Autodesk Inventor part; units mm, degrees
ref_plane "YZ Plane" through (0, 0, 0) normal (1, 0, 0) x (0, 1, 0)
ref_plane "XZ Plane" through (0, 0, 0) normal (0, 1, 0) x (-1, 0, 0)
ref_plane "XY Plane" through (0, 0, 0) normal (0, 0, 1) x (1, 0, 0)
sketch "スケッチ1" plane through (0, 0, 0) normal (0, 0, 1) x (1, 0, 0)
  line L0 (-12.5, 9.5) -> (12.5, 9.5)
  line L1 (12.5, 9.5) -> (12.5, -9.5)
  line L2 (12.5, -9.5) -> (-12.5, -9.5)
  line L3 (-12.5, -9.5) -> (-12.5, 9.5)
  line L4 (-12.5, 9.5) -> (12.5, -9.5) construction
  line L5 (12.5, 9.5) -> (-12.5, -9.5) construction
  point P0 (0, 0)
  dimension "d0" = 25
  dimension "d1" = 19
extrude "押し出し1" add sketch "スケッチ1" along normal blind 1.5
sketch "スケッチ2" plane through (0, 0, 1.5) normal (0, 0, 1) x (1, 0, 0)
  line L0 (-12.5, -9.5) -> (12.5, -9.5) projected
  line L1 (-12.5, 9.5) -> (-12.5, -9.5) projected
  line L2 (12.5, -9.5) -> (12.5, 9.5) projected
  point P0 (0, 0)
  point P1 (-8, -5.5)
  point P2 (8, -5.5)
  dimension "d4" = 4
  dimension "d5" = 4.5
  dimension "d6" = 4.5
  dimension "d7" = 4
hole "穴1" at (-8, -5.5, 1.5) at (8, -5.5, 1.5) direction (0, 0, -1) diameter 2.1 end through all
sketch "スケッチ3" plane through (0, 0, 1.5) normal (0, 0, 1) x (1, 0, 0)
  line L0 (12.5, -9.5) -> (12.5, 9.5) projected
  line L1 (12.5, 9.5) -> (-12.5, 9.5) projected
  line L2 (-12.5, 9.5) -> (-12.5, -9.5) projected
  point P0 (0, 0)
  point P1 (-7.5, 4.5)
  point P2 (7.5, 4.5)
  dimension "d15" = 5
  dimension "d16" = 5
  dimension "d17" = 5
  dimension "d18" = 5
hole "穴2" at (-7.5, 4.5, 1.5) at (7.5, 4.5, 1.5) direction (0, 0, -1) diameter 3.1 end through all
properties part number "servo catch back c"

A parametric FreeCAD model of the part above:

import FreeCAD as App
import Part
import Sketcher
Q = App.Units.Quantity


def add_polygon(sketch, points):
    """Adds a closed chain of lines whose ends are joined by coincident constraints."""
    first, n = sketch.GeometryCount, len(points)
    for a, b in zip(points, points[1:] + points[:1]):
        sketch.addGeometry(Part.LineSegment(App.Vector(*a, 0), App.Vector(*b, 0)), False)
    for i in range(n):
        sketch.addConstraint(Sketcher.Constraint("Coincident", first + i, 2, first + (i + 1) % n, 1))

doc = App.newDocument("Part")
body = doc.addObject("PartDesign::Body", "Body")

# Sketch on XY plane
sketch1 = body.newObject("Sketcher::SketchObject", "Sketch")
sketch1.AttachmentSupport = (doc.getObject("XY_Plane"), [""])
sketch1.MapMode = "FlatFace"
add_polygon(sketch1, [(12, 10), (-12, 10), (-12, -10), (12, -10)])  # lines 0-3
sketch1.addConstraint(Sketcher.Constraint("Horizontal", 0))
sketch1.addConstraint(Sketcher.Constraint("Vertical", 1))
sketch1.addConstraint(Sketcher.Constraint("Horizontal", 2))
sketch1.addConstraint(Sketcher.Constraint("Vertical", 3))
sketch1.addConstraint(Sketcher.Constraint("Symmetric", 0, 2, 2, 2, -1, 1))
sketch1.addConstraint(Sketcher.Constraint("DistanceX", 0, 2, 0, 1, Q("25 mm")))
sketch1.addConstraint(Sketcher.Constraint("DistanceY", 1, 2, 1, 1, Q("19 mm")))
pad1 = body.newObject("PartDesign::Pad", "Pad")
pad1.Profile = sketch1
pad1.Length = 1.5

# Sketch on XY plane
sketch2 = body.newObject("Sketcher::SketchObject", "Sketch001")
sketch2.AttachmentSupport = (doc.getObject("XY_Plane"), [""])
sketch2.MapMode = "FlatFace"
sketch2.AttachmentOffset = App.Placement(App.Vector(0, 0, 1.5), App.Rotation())
sketch2.addGeometry(Part.Circle(App.Vector(-8, -5.5, 0), App.Vector(0, 0, 1), 1.1), False)
sketch2.addGeometry(Part.Circle(App.Vector(8, -5.5, 0), App.Vector(0, 0, 1), 1.1), False)
sketch2.addConstraint(Sketcher.Constraint("Equal", 0, 1))
sketch2.addConstraint(Sketcher.Constraint("Symmetric", 0, 3, 1, 3, -2))
sketch2.addConstraint(Sketcher.Constraint("Diameter", 0, Q("2.1 mm")))
sketch2.addConstraint(Sketcher.Constraint("DistanceX", 0, 3, -1, 1, Q("8 mm")))
sketch2.addConstraint(Sketcher.Constraint("DistanceY", 0, 3, -1, 1, Q("5.5 mm")))
doc.recompute()
hole = body.newObject("PartDesign::Hole", "Hole")
hole.Profile = sketch2
hole.ThreadType = "None"
hole.Diameter = 2.1
hole.DepthType = "ThroughAll"

# Sketch on XY plane
sketch3 = body.newObject("Sketcher::SketchObject", "Sketch002")
sketch3.AttachmentSupport = (doc.getObject("XY_Plane"), [""])
sketch3.MapMode = "FlatFace"
sketch3.AttachmentOffset = App.Placement(App.Vector(0, 0, 1.5), App.Rotation())
sketch3.addGeometry(Part.Circle(App.Vector(-7.5, 4.5, 0), App.Vector(0, 0, 1), 1.6), False)
sketch3.addGeometry(Part.Circle(App.Vector(7.5, 4.5, 0), App.Vector(0, 0, 1), 1.6), False)
sketch3.addConstraint(Sketcher.Constraint("Equal", 0, 1))
sketch3.addConstraint(Sketcher.Constraint("Symmetric", 0, 3, 1, 3, -2))
sketch3.addConstraint(Sketcher.Constraint("Diameter", 0, Q("3.1 mm")))
sketch3.addConstraint(Sketcher.Constraint("DistanceX", 0, 3, 1, 3, Q("15 mm")))
sketch3.addConstraint(Sketcher.Constraint("DistanceY", -1, 1, 0, 3, Q("4.5 mm")))
doc.recompute()
hole2 = body.newObject("PartDesign::Hole", "Hole001")
hole2.Profile = sketch3
hole2.ThreadType = "None"
hole2.Diameter = 3.1
hole2.DepthType = "ThroughAll"

doc.recompute()
